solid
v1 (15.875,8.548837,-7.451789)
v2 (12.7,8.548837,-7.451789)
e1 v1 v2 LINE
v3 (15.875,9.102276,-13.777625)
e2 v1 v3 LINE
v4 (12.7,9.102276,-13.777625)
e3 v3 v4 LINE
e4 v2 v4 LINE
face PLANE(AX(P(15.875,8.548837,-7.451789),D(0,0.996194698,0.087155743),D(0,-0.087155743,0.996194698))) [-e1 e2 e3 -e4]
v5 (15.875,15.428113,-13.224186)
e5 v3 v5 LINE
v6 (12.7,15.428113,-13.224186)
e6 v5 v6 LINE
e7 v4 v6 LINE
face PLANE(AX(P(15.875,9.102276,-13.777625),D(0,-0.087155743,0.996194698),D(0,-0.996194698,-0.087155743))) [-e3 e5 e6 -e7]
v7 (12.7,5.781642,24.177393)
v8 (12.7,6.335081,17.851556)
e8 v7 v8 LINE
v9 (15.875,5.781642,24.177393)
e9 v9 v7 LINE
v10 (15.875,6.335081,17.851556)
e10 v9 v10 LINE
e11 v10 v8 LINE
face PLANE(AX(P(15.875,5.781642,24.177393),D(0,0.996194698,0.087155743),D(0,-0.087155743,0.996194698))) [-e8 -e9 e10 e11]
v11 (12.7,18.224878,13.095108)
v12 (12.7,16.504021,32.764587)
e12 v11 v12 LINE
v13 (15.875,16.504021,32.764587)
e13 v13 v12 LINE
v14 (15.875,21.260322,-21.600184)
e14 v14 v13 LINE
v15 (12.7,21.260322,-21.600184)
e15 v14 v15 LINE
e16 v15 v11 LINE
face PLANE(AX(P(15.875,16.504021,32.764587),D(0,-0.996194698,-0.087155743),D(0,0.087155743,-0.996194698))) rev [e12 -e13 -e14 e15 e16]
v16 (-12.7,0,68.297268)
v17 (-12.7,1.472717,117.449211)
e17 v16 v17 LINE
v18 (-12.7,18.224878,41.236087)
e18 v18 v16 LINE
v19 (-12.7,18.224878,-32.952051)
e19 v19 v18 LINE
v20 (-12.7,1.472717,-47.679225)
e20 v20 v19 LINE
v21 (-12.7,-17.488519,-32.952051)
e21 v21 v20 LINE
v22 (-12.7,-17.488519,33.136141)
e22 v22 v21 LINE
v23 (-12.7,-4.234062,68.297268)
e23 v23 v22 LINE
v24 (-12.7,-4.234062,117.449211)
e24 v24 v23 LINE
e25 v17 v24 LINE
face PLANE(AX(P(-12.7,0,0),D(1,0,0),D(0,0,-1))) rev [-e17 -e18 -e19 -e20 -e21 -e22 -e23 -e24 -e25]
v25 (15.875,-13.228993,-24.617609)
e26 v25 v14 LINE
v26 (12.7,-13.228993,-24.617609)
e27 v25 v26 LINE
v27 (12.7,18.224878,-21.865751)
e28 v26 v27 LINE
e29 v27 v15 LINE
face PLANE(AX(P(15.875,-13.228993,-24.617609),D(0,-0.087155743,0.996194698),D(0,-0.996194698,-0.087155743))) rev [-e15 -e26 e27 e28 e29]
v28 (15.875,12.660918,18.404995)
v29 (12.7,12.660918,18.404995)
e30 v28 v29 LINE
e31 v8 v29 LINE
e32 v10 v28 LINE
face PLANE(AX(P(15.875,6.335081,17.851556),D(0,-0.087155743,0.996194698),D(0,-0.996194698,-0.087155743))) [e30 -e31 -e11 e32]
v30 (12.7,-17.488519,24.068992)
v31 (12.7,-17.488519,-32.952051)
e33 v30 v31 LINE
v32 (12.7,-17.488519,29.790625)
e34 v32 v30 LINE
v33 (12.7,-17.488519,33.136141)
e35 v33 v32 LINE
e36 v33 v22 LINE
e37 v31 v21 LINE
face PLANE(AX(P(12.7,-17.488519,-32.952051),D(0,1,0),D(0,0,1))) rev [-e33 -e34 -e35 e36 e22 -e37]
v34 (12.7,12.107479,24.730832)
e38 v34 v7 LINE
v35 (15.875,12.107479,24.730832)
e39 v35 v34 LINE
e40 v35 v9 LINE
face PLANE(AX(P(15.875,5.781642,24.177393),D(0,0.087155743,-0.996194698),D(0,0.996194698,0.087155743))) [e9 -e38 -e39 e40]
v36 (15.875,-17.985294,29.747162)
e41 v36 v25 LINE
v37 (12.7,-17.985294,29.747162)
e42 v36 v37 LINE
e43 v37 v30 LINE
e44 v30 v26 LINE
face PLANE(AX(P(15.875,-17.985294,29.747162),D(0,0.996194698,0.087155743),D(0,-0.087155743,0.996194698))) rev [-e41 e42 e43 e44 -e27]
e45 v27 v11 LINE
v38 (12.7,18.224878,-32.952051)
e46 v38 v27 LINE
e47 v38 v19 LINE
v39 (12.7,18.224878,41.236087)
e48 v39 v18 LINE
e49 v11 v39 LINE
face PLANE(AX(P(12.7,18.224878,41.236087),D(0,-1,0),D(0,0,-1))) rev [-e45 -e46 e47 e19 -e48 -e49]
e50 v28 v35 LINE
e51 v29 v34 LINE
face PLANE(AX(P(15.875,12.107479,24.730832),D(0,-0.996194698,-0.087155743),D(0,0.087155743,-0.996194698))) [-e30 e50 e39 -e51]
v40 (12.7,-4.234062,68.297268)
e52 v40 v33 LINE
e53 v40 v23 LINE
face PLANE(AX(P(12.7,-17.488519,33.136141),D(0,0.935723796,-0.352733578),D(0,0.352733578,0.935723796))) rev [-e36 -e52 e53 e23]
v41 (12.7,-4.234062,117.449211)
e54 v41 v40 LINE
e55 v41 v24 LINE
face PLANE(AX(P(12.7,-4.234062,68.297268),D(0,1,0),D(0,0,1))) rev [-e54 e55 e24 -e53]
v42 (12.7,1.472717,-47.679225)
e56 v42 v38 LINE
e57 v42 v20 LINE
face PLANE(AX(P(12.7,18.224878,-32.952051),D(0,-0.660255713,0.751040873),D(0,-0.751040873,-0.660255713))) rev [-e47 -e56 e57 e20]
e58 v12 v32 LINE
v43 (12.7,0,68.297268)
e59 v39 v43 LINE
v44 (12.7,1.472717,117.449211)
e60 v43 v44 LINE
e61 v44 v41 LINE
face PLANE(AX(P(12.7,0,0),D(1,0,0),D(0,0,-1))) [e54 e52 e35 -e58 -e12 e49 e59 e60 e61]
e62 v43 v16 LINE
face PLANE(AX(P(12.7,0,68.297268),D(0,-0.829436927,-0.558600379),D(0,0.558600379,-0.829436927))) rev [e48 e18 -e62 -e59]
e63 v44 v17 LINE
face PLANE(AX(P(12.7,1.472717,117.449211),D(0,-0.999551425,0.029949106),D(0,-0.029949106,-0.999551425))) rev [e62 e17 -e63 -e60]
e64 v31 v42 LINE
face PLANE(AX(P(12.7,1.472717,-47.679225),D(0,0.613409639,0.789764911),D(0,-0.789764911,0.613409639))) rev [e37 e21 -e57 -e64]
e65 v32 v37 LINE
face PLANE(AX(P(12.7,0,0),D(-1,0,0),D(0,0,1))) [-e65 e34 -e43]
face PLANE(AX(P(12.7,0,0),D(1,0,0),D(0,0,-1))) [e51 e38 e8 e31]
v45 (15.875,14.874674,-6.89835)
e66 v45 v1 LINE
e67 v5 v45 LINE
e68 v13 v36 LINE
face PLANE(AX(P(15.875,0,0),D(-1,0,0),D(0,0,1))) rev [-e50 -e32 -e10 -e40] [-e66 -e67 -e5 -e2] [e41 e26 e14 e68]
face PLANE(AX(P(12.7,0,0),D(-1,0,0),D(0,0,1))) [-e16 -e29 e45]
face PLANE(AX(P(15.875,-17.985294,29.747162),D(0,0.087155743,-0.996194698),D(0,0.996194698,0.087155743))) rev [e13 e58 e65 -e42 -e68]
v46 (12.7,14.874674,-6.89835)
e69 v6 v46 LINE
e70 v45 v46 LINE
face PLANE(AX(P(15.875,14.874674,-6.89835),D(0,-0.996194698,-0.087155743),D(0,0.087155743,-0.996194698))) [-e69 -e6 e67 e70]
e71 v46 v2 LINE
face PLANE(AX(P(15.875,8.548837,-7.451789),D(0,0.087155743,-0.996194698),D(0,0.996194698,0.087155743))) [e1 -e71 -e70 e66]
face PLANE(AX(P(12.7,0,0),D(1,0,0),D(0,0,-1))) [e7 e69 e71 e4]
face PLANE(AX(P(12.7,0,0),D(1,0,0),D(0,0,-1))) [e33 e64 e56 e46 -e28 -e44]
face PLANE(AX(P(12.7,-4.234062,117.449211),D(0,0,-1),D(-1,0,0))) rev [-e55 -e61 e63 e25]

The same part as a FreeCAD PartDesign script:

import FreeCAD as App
import Part
import Sketcher

V = App.Vector
Q = App.Units.Quantity

doc = App.newDocument("Part")
body = doc.addObject("PartDesign::Body", "Body")

sketch1 = doc.addObject("Sketcher::SketchObject", "Sketch")
body.addObject(sketch1)
sketch1.AttachmentSupport = (doc.YZ_Plane, [""])
sketch1.MapMode = "FlatFace"
sketch1.addGeometry([
    Part.LineSegment(V(18.224878, 41.236087, 0), V(0, 68.297268, 0)),
    Part.LineSegment(V(0, 68.297268, 0), V(1.472717, 117.449211, 0)),
    Part.LineSegment(V(1.472717, 117.449211, 0), V(-4.234062, 117.449211, 0)),
    Part.LineSegment(V(-4.234062, 117.449211, 0), V(-4.234062, 68.297268, 0)),
    Part.LineSegment(V(-4.234062, 68.297268, 0), V(-17.488519, 33.136141, 0)),
    Part.LineSegment(V(-17.488519, 33.136141, 0), V(-17.488519, -32.952051, 0)),
    Part.LineSegment(V(-17.488519, -32.952051, 0), V(1.472717, -47.679225, 0)),
    Part.LineSegment(V(1.472717, -47.679225, 0), V(18.224878, -32.952051, 0)),
    Part.LineSegment(V(18.224878, -32.952051, 0), V(18.224878, 41.236087, 0)),
], False)
sketch1.addConstraint([
    Sketcher.Constraint("Coincident", 0, 2, 1, 1),
    Sketcher.Constraint("Coincident", 1, 2, 2, 1),
    Sketcher.Constraint("Coincident", 2, 2, 3, 1),
    Sketcher.Constraint("Coincident", 3, 2, 4, 1),
    Sketcher.Constraint("Coincident", 4, 2, 5, 1),
    Sketcher.Constraint("Coincident", 5, 2, 6, 1),
    Sketcher.Constraint("Coincident", 6, 2, 7, 1),
    Sketcher.Constraint("Coincident", 7, 2, 8, 1),
    Sketcher.Constraint("Coincident", 8, 2, 0, 1),
    Sketcher.Constraint("Horizontal", 2),
    Sketcher.Constraint("Vertical", 3),
    Sketcher.Constraint("Vertical", 5),
    Sketcher.Constraint("Vertical", 8),
    Sketcher.Constraint("PointOnObject", 0, 2, -2),
    Sketcher.Constraint("Distance", 1, Q("49.174001 mm")),
    Sketcher.Constraint("DistanceX", 2, 2, 2, 1, Q("5.70678 mm")),
    Sketcher.Constraint("Distance", 6, Q("24.008709 mm")),
    Sketcher.Constraint("DistanceY", 3, 2, 3, 1, Q("49.151942 mm")),
    Sketcher.Constraint("DistanceY", 5, 2, 5, 1, Q("66.088192 mm")),
    Sketcher.Constraint("DistanceY", 8, 1, 8, 2, Q("74.188138 mm")),
    Sketcher.Constraint("DistanceY", -1, 1, 0, 2, Q("68.297268 mm")),
    Sketcher.Constraint("DistanceY", -1, 1, 1, 2, Q("117.449211 mm")),
    Sketcher.Constraint("DistanceX", 4, 2, -1, 1, Q("17.488519 mm")),
    Sketcher.Constraint("DistanceY", -1, 1, 4, 2, Q("33.136141 mm")),
    Sketcher.Constraint("DistanceY", 7, 2, -1, 1, Q("32.952051 mm")),
    Sketcher.Constraint("DistanceX", 3, 2, 6, 2, Q("5.70678 mm")),
    Sketcher.Constraint("DistanceX", 6, 2, 7, 2, Q("16.75216 mm")),
])
pad1 = doc.addObject("PartDesign::Pad", "Pad")
body.addObject(pad1)
pad1.Profile = sketch1
pad1.Length = Q("1 in")
pad1.Midplane = True

sketch2 = doc.addObject("Sketcher::SketchObject", "Sketch001")
body.addObject(sketch2)
sketch2.AttachmentSupport = (doc.YZ_Plane, [""])
sketch2.MapMode = "FlatFace"
sketch2.AttachmentOffset = App.Placement(V(0, 0, 0.5 * 25.4), App.Rotation())
sketch2.addGeometry([
    Part.LineSegment(V(-18, 30, 0), V(-13, -25, 0)),
    Part.LineSegment(V(-13, -25, 0), V(21, -22, 0)),
    Part.LineSegment(V(21, -22, 0), V(17, 33, 0)),
    Part.LineSegment(V(17, 33, 0), V(-18, 30, 0)),
    Part.LineSegment(V(6, 18, 0), V(6, 24, 0)),
    Part.LineSegment(V(6, 24, 0), V(12, 25, 0)),
    Part.LineSegment(V(12, 25, 0), V(13, 18, 0)),
    Part.LineSegment(V(13, 18, 0), V(6, 18, 0)),
    Part.LineSegment(V(9, -14, 0), V(9, -7, 0)),
    Part.LineSegment(V(9, -7, 0), V(15, -7, 0)),
    Part.LineSegment(V(15, -7, 0), V(15, -13, 0)),
    Part.LineSegment(V(15, -13, 0), V(9, -14, 0)),
], False)
sketch2.addConstraint([
    Sketcher.Constraint("Coincident", 0, 2, 1, 1),
    Sketcher.Constraint("Coincident", 1, 2, 2, 1),
    Sketcher.Constraint("Coincident", 2, 2, 3, 1),
    Sketcher.Constraint("Coincident", 3, 2, 0, 1),
    Sketcher.Constraint("Coincident", 4, 2, 5, 1),
    Sketcher.Constraint("Coincident", 5, 2, 6, 1),
    Sketcher.Constraint("Coincident", 6, 2, 7, 1),
    Sketcher.Constraint("Coincident", 7, 2, 4, 1),
    Sketcher.Constraint("Coincident", 8, 2, 9, 1),
    Sketcher.Constraint("Coincident", 9, 2, 10, 1),
    Sketcher.Constraint("Coincident", 10, 2, 11, 1),
    Sketcher.Constraint("Coincident", 11, 2, 8, 1),
    Sketcher.Constraint("Perpendicular", 0, 1),
    Sketcher.Constraint("Perpendicular", 1, 2),
    Sketcher.Constraint("Perpendicular", 2, 3),
    Sketcher.Constraint("Perpendicular", 3, 4),
    Sketcher.Constraint("Perpendicular", 4, 5),
    Sketcher.Constraint("Perpendicular", 5, 6),
    Sketcher.Constraint("Perpendicular", 6, 7),
    Sketcher.Constraint("Perpendicular", 7, 8),
    Sketcher.Constraint("Perpendicular", 8, 9),
    Sketcher.Constraint("Perpendicular", 9, 10),
    Sketcher.Constraint("Perpendicular", 10, 11),
    Sketcher.Constraint("Equal", 4, 5),
    Sketcher.Constraint("Equal", 7, 8),
    Sketcher.Constraint("Equal", 8, 9),
    Sketcher.Constraint("Angle", 0, Q("-85 deg")),
    Sketcher.Constraint("Distance", 4, Q("0.25 in")),
    Sketcher.Constraint("DistanceX", 2, 2, 1, 2, Q("4.756301 mm")),
    Sketcher.Constraint("DistanceY", 0, 2, 4, 2, Q("48.795001 mm")),
    Sketcher.Constraint("DistanceY", 1, 2, 10, 2, Q("8.375998 mm")),
    Sketcher.Constraint("Distance", 1, Q("34.621059 mm")),
    Sketcher.Constraint("DistanceY", 0, 2, -1, 1, Q("24.617609 mm")),
    Sketcher.Constraint("DistanceX", -1, 1, 2, 2, Q("16.504021 mm")),
    Sketcher.Constraint("DistanceX", -1, 1, 5, 2, Q("12.107479 mm")),
    Sketcher.Constraint("DistanceX", 8, 2, 6, 2, Q("4.11208 mm")),
])
pad2 = doc.addObject("PartDesign::Pad", "Pad001")
body.addObject(pad2)
pad2.Profile = sketch2
pad2.Length = Q("0.125 in")

doc.recompute()
